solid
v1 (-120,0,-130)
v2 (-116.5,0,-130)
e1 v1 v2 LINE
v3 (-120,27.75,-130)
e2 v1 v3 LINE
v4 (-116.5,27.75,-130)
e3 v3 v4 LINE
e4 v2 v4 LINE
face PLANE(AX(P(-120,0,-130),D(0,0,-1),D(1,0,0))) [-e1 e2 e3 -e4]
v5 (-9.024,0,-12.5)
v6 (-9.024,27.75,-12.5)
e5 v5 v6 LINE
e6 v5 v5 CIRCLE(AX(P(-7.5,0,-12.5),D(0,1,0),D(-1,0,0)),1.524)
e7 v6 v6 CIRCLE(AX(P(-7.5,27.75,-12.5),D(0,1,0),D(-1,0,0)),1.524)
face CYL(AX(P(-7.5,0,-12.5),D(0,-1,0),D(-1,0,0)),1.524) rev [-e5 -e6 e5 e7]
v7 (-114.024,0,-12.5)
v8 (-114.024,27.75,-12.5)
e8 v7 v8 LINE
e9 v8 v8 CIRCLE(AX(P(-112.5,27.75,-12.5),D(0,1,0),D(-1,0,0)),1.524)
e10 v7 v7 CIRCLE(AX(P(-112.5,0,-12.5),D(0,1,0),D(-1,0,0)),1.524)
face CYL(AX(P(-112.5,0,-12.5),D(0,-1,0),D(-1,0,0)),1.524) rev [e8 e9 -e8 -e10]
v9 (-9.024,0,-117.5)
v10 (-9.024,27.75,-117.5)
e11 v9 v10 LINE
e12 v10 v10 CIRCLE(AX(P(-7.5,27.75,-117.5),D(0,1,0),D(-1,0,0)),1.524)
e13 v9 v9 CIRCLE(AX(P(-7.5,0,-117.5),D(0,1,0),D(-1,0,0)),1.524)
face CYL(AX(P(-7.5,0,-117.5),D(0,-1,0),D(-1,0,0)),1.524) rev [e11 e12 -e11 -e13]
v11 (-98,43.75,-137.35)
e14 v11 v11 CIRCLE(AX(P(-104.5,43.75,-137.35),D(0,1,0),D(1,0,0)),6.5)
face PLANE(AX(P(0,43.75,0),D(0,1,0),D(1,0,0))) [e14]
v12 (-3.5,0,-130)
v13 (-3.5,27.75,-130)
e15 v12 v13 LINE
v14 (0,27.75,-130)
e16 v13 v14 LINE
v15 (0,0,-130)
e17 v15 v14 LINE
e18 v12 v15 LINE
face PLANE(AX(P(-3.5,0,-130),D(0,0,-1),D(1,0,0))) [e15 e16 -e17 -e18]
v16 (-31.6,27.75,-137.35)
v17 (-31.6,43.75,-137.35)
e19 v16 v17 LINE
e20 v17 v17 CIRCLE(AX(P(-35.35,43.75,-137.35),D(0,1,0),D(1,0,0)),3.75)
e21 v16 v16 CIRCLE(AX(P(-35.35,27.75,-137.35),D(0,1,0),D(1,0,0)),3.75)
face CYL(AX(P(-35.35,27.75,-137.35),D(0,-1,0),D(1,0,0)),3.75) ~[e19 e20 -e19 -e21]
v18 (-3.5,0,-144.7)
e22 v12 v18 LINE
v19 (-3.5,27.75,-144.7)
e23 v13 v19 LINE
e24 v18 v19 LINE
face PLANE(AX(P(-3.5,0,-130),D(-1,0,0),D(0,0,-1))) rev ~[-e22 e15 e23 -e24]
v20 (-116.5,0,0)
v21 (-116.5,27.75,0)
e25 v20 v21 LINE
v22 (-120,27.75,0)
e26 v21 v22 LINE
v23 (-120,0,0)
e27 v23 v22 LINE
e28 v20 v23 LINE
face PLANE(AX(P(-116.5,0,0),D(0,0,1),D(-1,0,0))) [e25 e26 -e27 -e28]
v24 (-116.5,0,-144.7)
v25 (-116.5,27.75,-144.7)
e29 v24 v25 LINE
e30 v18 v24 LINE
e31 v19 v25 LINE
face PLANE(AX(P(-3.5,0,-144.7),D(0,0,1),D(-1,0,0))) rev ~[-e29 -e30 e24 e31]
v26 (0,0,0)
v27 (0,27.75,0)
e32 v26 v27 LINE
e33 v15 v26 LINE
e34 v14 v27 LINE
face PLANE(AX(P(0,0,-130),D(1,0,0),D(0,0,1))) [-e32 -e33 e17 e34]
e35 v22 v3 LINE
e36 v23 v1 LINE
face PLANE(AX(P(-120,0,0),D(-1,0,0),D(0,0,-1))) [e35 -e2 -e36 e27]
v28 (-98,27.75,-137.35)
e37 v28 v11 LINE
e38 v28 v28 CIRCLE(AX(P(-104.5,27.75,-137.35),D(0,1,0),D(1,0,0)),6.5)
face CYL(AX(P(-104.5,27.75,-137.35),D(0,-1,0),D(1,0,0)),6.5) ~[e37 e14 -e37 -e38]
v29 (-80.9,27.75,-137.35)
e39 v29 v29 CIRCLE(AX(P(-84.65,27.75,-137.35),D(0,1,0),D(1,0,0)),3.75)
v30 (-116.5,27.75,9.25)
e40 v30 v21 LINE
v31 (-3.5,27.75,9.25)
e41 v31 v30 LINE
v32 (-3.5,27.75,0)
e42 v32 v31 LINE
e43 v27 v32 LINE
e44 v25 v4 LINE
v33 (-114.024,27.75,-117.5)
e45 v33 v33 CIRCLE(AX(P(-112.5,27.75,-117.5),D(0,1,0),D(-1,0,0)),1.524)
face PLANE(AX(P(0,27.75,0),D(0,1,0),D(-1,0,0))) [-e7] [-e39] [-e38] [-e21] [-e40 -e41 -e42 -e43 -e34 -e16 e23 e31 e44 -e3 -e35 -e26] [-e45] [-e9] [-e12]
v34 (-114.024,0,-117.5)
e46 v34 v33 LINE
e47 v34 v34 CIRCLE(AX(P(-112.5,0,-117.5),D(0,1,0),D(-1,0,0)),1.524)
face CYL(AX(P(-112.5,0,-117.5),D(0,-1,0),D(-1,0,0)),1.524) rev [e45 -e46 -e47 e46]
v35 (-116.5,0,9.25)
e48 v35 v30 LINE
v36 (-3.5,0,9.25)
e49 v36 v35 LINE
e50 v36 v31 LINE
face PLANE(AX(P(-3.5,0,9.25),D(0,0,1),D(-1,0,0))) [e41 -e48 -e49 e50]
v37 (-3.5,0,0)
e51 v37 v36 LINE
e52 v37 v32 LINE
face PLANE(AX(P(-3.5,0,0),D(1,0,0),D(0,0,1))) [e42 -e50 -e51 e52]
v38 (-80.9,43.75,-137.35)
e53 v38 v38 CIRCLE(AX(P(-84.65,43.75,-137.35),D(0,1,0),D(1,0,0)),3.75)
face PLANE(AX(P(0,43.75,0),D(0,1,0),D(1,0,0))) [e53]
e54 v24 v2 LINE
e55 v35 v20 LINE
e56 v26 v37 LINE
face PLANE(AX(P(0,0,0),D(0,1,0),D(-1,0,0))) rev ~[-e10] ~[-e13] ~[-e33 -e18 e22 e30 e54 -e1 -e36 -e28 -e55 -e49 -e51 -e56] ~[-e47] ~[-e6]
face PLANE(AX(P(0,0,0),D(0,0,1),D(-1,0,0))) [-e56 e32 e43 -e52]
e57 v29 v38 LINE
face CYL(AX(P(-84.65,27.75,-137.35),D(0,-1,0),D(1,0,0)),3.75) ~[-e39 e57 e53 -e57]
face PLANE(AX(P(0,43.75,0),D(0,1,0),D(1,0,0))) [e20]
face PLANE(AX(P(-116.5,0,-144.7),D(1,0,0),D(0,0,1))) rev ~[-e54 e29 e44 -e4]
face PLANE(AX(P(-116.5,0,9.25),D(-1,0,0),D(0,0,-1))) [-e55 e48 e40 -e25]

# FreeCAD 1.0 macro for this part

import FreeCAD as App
import Part
import Sketcher
Q = App.Units.Quantity

doc = App.newDocument("Part")
body = doc.addObject("PartDesign::Body", "Body")

# Sketch on XZ plane
sketch1 = doc.addObject("Sketcher::SketchObject", "Sketch")
body.addObject(sketch1)
sketch1.AttachmentSupport = (doc.XZ_Plane, [""])
sketch1.MapMode = "FlatFace"
sketch1.addGeometry([
    Part.LineSegment(App.Vector(-3.5, 0, 0), App.Vector(0, 0, 0)),  # 0
    Part.LineSegment(App.Vector(0, 0, 0), App.Vector(0, -130, 0)),  # 1
    Part.LineSegment(App.Vector(0, -130, 0), App.Vector(-3.5, -130, 0)),  # 2
    Part.LineSegment(App.Vector(-3.5, -130, 0), App.Vector(-3.5, -144.7, 0)),  # 3
    Part.LineSegment(App.Vector(-3.5, -144.7, 0), App.Vector(-116.5, -144.7, 0)),  # 4
    Part.LineSegment(App.Vector(-116.5, -144.7, 0), App.Vector(-116.5, -130, 0)),  # 5
    Part.LineSegment(App.Vector(-116.5, -130, 0), App.Vector(-120, -130, 0)),  # 6
    Part.LineSegment(App.Vector(-120, -130, 0), App.Vector(-120, 0, 0)),  # 7
    Part.LineSegment(App.Vector(-120, 0, 0), App.Vector(-116.5, 0, 0)),  # 8
    Part.LineSegment(App.Vector(-116.5, 0, 0), App.Vector(-116.5, 9.25, 0)),  # 9
    Part.LineSegment(App.Vector(-116.5, 9.25, 0), App.Vector(-3.5, 9.25, 0)),  # 10
    Part.LineSegment(App.Vector(-3.5, 9.25, 0), App.Vector(-3.5, 0, 0)),  # 11
    Part.Circle(App.Vector(-7.5, -117.5, 0), App.Vector(0, 0, 1), 1.524),  # 12
    Part.Circle(App.Vector(-112.5, -117.5, 0), App.Vector(0, 0, 1), 1.524),  # 13
    Part.Circle(App.Vector(-7.5, -12.5, 0), App.Vector(0, 0, 1), 1.524),  # 14
    Part.Circle(App.Vector(-112.5, -12.5, 0), App.Vector(0, 0, 1), 1.524),  # 15
], False)
sketch1.addConstraint([
    Sketcher.Constraint("Coincident", 0, 2, 1, 1),
    Sketcher.Constraint("Coincident", 1, 2, 2, 1),
    Sketcher.Constraint("Coincident", 2, 2, 3, 1),
    Sketcher.Constraint("Coincident", 3, 2, 4, 1),
    Sketcher.Constraint("Coincident", 4, 2, 5, 1),
    Sketcher.Constraint("Coincident", 5, 2, 6, 1),
    Sketcher.Constraint("Coincident", 6, 2, 7, 1),
    Sketcher.Constraint("Coincident", 7, 2, 8, 1),
    Sketcher.Constraint("Coincident", 8, 2, 9, 1),
    Sketcher.Constraint("Coincident", 9, 2, 10, 1),
    Sketcher.Constraint("Coincident", 10, 2, 11, 1),
    Sketcher.Constraint("Coincident", 11, 2, 0, 1),
    Sketcher.Constraint("Horizontal", 0),
    Sketcher.Constraint("Vertical", 1),
    Sketcher.Constraint("Horizontal", 2),
    Sketcher.Constraint("Vertical", 3),
    Sketcher.Constraint("Horizontal", 4),
    Sketcher.Constraint("Vertical", 5),
    Sketcher.Constraint("Horizontal", 6),
    Sketcher.Constraint("Vertical", 7),
    Sketcher.Constraint("Horizontal", 8),
    Sketcher.Constraint("Vertical", 9),
    Sketcher.Constraint("Horizontal", 10),
    Sketcher.Constraint("Vertical", 11),
    Sketcher.Constraint("Coincident", 0, 2, -1, 1),
    Sketcher.Constraint("Equal", 12, 13),
    Sketcher.Constraint("Equal", 13, 14),
    Sketcher.Constraint("Equal", 14, 15),
    Sketcher.Constraint("PointOnObject", 7, 2, -1),
    Sketcher.Constraint("Horizontal", 12, 3, 13, 3),
    Sketcher.Constraint("Horizontal", 14, 3, 15, 3),
    Sketcher.Constraint("Horizontal", 2, 2, 5, 2),
    Sketcher.Constraint("Vertical", 12, 3, 14, 3),
    Sketcher.Constraint("Vertical", 13, 3, 15, 3),
    Sketcher.Constraint("Vertical", 5, 2, 8, 2),
    Sketcher.Constraint("Vertical", 3, 2, 10, 2),
    Sketcher.Constraint("Equal", 2, 6),
    Sketcher.Constraint("DistanceX", 4, 2, 4, 1, Q("113 mm")),
    Sketcher.Constraint("DistanceY", 1, 2, 1, 1, Q("130 mm")),
    Sketcher.Constraint("Diameter", 12, Q("3.048 mm")),
    Sketcher.Constraint("DistanceY", 3, 2, 3, 1, Q("14.7 mm")),
    Sketcher.Constraint("DistanceX", 6, 2, -1, 1, Q("120 mm")),
    Sketcher.Constraint("DistanceX", 13, 3, 12, 3, Q("105 mm")),
    Sketcher.Constraint("DistanceY", 12, 3, 14, 3, Q("105 mm")),
    Sketcher.Constraint("DistanceY", 9, 1, 9, 2, Q("9.25 mm")),
    Sketcher.Constraint("DistanceX", 12, 3, 2, 2, Q("4 mm")),
    Sketcher.Constraint("DistanceY", 12, 3, -1, 1, Q("117.5 mm")),
])
pad1 = doc.addObject("PartDesign::Pad", "Pad")
body.addObject(pad1)
pad1.Profile = sketch1
pad1.Length = 27.75
pad1.Reversed = True

# Sketch on XZ plane
sketch2 = doc.addObject("Sketcher::SketchObject", "Sketch001")
body.addObject(sketch2)
sketch2.AttachmentSupport = (doc.XZ_Plane, [""])
sketch2.MapMode = "FlatFace"
sketch2.AttachmentOffset = App.Placement(App.Vector(0, 0, -27.75), App.Rotation())
sketch2.addGeometry([
    Part.Circle(App.Vector(-104.5, -137.35, 0), App.Vector(0, 0, 1), 6.5),
    Part.Circle(App.Vector(-84.65, -137.35, 0), App.Vector(0, 0, 1), 3.75),
    Part.Circle(App.Vector(-35.35, -137.35, 0), App.Vector(0, 0, 1), 3.75),
], False)
sketch2.addConstraint([
    Sketcher.Constraint("Equal", 1, 2),
    Sketcher.Constraint("Horizontal", 0, 3, 1, 3),
    Sketcher.Constraint("Horizontal", 1, 3, 2, 3),
    Sketcher.Constraint("Diameter", 0, Q("13 mm")),
    Sketcher.Constraint("Diameter", 1, Q("7.5 mm")),
    Sketcher.Constraint("DistanceX", 0, 3, -1, 1, Q("104.5 mm")),
    Sketcher.Constraint("DistanceX", 1, 3, 2, 3, Q("49.3 mm")),
    Sketcher.Constraint("DistanceY", 0, 3, -1, 1, Q("137.35 mm")),
    Sketcher.Constraint("DistanceX", 1, 3, -1, 1, Q("84.65 mm")),
])
pad2 = doc.addObject("PartDesign::Pad", "Pad001")
body.addObject(pad2)
pad2.Profile = sketch2
pad2.Length = 16
pad2.Reversed = True

doc.recompute()
